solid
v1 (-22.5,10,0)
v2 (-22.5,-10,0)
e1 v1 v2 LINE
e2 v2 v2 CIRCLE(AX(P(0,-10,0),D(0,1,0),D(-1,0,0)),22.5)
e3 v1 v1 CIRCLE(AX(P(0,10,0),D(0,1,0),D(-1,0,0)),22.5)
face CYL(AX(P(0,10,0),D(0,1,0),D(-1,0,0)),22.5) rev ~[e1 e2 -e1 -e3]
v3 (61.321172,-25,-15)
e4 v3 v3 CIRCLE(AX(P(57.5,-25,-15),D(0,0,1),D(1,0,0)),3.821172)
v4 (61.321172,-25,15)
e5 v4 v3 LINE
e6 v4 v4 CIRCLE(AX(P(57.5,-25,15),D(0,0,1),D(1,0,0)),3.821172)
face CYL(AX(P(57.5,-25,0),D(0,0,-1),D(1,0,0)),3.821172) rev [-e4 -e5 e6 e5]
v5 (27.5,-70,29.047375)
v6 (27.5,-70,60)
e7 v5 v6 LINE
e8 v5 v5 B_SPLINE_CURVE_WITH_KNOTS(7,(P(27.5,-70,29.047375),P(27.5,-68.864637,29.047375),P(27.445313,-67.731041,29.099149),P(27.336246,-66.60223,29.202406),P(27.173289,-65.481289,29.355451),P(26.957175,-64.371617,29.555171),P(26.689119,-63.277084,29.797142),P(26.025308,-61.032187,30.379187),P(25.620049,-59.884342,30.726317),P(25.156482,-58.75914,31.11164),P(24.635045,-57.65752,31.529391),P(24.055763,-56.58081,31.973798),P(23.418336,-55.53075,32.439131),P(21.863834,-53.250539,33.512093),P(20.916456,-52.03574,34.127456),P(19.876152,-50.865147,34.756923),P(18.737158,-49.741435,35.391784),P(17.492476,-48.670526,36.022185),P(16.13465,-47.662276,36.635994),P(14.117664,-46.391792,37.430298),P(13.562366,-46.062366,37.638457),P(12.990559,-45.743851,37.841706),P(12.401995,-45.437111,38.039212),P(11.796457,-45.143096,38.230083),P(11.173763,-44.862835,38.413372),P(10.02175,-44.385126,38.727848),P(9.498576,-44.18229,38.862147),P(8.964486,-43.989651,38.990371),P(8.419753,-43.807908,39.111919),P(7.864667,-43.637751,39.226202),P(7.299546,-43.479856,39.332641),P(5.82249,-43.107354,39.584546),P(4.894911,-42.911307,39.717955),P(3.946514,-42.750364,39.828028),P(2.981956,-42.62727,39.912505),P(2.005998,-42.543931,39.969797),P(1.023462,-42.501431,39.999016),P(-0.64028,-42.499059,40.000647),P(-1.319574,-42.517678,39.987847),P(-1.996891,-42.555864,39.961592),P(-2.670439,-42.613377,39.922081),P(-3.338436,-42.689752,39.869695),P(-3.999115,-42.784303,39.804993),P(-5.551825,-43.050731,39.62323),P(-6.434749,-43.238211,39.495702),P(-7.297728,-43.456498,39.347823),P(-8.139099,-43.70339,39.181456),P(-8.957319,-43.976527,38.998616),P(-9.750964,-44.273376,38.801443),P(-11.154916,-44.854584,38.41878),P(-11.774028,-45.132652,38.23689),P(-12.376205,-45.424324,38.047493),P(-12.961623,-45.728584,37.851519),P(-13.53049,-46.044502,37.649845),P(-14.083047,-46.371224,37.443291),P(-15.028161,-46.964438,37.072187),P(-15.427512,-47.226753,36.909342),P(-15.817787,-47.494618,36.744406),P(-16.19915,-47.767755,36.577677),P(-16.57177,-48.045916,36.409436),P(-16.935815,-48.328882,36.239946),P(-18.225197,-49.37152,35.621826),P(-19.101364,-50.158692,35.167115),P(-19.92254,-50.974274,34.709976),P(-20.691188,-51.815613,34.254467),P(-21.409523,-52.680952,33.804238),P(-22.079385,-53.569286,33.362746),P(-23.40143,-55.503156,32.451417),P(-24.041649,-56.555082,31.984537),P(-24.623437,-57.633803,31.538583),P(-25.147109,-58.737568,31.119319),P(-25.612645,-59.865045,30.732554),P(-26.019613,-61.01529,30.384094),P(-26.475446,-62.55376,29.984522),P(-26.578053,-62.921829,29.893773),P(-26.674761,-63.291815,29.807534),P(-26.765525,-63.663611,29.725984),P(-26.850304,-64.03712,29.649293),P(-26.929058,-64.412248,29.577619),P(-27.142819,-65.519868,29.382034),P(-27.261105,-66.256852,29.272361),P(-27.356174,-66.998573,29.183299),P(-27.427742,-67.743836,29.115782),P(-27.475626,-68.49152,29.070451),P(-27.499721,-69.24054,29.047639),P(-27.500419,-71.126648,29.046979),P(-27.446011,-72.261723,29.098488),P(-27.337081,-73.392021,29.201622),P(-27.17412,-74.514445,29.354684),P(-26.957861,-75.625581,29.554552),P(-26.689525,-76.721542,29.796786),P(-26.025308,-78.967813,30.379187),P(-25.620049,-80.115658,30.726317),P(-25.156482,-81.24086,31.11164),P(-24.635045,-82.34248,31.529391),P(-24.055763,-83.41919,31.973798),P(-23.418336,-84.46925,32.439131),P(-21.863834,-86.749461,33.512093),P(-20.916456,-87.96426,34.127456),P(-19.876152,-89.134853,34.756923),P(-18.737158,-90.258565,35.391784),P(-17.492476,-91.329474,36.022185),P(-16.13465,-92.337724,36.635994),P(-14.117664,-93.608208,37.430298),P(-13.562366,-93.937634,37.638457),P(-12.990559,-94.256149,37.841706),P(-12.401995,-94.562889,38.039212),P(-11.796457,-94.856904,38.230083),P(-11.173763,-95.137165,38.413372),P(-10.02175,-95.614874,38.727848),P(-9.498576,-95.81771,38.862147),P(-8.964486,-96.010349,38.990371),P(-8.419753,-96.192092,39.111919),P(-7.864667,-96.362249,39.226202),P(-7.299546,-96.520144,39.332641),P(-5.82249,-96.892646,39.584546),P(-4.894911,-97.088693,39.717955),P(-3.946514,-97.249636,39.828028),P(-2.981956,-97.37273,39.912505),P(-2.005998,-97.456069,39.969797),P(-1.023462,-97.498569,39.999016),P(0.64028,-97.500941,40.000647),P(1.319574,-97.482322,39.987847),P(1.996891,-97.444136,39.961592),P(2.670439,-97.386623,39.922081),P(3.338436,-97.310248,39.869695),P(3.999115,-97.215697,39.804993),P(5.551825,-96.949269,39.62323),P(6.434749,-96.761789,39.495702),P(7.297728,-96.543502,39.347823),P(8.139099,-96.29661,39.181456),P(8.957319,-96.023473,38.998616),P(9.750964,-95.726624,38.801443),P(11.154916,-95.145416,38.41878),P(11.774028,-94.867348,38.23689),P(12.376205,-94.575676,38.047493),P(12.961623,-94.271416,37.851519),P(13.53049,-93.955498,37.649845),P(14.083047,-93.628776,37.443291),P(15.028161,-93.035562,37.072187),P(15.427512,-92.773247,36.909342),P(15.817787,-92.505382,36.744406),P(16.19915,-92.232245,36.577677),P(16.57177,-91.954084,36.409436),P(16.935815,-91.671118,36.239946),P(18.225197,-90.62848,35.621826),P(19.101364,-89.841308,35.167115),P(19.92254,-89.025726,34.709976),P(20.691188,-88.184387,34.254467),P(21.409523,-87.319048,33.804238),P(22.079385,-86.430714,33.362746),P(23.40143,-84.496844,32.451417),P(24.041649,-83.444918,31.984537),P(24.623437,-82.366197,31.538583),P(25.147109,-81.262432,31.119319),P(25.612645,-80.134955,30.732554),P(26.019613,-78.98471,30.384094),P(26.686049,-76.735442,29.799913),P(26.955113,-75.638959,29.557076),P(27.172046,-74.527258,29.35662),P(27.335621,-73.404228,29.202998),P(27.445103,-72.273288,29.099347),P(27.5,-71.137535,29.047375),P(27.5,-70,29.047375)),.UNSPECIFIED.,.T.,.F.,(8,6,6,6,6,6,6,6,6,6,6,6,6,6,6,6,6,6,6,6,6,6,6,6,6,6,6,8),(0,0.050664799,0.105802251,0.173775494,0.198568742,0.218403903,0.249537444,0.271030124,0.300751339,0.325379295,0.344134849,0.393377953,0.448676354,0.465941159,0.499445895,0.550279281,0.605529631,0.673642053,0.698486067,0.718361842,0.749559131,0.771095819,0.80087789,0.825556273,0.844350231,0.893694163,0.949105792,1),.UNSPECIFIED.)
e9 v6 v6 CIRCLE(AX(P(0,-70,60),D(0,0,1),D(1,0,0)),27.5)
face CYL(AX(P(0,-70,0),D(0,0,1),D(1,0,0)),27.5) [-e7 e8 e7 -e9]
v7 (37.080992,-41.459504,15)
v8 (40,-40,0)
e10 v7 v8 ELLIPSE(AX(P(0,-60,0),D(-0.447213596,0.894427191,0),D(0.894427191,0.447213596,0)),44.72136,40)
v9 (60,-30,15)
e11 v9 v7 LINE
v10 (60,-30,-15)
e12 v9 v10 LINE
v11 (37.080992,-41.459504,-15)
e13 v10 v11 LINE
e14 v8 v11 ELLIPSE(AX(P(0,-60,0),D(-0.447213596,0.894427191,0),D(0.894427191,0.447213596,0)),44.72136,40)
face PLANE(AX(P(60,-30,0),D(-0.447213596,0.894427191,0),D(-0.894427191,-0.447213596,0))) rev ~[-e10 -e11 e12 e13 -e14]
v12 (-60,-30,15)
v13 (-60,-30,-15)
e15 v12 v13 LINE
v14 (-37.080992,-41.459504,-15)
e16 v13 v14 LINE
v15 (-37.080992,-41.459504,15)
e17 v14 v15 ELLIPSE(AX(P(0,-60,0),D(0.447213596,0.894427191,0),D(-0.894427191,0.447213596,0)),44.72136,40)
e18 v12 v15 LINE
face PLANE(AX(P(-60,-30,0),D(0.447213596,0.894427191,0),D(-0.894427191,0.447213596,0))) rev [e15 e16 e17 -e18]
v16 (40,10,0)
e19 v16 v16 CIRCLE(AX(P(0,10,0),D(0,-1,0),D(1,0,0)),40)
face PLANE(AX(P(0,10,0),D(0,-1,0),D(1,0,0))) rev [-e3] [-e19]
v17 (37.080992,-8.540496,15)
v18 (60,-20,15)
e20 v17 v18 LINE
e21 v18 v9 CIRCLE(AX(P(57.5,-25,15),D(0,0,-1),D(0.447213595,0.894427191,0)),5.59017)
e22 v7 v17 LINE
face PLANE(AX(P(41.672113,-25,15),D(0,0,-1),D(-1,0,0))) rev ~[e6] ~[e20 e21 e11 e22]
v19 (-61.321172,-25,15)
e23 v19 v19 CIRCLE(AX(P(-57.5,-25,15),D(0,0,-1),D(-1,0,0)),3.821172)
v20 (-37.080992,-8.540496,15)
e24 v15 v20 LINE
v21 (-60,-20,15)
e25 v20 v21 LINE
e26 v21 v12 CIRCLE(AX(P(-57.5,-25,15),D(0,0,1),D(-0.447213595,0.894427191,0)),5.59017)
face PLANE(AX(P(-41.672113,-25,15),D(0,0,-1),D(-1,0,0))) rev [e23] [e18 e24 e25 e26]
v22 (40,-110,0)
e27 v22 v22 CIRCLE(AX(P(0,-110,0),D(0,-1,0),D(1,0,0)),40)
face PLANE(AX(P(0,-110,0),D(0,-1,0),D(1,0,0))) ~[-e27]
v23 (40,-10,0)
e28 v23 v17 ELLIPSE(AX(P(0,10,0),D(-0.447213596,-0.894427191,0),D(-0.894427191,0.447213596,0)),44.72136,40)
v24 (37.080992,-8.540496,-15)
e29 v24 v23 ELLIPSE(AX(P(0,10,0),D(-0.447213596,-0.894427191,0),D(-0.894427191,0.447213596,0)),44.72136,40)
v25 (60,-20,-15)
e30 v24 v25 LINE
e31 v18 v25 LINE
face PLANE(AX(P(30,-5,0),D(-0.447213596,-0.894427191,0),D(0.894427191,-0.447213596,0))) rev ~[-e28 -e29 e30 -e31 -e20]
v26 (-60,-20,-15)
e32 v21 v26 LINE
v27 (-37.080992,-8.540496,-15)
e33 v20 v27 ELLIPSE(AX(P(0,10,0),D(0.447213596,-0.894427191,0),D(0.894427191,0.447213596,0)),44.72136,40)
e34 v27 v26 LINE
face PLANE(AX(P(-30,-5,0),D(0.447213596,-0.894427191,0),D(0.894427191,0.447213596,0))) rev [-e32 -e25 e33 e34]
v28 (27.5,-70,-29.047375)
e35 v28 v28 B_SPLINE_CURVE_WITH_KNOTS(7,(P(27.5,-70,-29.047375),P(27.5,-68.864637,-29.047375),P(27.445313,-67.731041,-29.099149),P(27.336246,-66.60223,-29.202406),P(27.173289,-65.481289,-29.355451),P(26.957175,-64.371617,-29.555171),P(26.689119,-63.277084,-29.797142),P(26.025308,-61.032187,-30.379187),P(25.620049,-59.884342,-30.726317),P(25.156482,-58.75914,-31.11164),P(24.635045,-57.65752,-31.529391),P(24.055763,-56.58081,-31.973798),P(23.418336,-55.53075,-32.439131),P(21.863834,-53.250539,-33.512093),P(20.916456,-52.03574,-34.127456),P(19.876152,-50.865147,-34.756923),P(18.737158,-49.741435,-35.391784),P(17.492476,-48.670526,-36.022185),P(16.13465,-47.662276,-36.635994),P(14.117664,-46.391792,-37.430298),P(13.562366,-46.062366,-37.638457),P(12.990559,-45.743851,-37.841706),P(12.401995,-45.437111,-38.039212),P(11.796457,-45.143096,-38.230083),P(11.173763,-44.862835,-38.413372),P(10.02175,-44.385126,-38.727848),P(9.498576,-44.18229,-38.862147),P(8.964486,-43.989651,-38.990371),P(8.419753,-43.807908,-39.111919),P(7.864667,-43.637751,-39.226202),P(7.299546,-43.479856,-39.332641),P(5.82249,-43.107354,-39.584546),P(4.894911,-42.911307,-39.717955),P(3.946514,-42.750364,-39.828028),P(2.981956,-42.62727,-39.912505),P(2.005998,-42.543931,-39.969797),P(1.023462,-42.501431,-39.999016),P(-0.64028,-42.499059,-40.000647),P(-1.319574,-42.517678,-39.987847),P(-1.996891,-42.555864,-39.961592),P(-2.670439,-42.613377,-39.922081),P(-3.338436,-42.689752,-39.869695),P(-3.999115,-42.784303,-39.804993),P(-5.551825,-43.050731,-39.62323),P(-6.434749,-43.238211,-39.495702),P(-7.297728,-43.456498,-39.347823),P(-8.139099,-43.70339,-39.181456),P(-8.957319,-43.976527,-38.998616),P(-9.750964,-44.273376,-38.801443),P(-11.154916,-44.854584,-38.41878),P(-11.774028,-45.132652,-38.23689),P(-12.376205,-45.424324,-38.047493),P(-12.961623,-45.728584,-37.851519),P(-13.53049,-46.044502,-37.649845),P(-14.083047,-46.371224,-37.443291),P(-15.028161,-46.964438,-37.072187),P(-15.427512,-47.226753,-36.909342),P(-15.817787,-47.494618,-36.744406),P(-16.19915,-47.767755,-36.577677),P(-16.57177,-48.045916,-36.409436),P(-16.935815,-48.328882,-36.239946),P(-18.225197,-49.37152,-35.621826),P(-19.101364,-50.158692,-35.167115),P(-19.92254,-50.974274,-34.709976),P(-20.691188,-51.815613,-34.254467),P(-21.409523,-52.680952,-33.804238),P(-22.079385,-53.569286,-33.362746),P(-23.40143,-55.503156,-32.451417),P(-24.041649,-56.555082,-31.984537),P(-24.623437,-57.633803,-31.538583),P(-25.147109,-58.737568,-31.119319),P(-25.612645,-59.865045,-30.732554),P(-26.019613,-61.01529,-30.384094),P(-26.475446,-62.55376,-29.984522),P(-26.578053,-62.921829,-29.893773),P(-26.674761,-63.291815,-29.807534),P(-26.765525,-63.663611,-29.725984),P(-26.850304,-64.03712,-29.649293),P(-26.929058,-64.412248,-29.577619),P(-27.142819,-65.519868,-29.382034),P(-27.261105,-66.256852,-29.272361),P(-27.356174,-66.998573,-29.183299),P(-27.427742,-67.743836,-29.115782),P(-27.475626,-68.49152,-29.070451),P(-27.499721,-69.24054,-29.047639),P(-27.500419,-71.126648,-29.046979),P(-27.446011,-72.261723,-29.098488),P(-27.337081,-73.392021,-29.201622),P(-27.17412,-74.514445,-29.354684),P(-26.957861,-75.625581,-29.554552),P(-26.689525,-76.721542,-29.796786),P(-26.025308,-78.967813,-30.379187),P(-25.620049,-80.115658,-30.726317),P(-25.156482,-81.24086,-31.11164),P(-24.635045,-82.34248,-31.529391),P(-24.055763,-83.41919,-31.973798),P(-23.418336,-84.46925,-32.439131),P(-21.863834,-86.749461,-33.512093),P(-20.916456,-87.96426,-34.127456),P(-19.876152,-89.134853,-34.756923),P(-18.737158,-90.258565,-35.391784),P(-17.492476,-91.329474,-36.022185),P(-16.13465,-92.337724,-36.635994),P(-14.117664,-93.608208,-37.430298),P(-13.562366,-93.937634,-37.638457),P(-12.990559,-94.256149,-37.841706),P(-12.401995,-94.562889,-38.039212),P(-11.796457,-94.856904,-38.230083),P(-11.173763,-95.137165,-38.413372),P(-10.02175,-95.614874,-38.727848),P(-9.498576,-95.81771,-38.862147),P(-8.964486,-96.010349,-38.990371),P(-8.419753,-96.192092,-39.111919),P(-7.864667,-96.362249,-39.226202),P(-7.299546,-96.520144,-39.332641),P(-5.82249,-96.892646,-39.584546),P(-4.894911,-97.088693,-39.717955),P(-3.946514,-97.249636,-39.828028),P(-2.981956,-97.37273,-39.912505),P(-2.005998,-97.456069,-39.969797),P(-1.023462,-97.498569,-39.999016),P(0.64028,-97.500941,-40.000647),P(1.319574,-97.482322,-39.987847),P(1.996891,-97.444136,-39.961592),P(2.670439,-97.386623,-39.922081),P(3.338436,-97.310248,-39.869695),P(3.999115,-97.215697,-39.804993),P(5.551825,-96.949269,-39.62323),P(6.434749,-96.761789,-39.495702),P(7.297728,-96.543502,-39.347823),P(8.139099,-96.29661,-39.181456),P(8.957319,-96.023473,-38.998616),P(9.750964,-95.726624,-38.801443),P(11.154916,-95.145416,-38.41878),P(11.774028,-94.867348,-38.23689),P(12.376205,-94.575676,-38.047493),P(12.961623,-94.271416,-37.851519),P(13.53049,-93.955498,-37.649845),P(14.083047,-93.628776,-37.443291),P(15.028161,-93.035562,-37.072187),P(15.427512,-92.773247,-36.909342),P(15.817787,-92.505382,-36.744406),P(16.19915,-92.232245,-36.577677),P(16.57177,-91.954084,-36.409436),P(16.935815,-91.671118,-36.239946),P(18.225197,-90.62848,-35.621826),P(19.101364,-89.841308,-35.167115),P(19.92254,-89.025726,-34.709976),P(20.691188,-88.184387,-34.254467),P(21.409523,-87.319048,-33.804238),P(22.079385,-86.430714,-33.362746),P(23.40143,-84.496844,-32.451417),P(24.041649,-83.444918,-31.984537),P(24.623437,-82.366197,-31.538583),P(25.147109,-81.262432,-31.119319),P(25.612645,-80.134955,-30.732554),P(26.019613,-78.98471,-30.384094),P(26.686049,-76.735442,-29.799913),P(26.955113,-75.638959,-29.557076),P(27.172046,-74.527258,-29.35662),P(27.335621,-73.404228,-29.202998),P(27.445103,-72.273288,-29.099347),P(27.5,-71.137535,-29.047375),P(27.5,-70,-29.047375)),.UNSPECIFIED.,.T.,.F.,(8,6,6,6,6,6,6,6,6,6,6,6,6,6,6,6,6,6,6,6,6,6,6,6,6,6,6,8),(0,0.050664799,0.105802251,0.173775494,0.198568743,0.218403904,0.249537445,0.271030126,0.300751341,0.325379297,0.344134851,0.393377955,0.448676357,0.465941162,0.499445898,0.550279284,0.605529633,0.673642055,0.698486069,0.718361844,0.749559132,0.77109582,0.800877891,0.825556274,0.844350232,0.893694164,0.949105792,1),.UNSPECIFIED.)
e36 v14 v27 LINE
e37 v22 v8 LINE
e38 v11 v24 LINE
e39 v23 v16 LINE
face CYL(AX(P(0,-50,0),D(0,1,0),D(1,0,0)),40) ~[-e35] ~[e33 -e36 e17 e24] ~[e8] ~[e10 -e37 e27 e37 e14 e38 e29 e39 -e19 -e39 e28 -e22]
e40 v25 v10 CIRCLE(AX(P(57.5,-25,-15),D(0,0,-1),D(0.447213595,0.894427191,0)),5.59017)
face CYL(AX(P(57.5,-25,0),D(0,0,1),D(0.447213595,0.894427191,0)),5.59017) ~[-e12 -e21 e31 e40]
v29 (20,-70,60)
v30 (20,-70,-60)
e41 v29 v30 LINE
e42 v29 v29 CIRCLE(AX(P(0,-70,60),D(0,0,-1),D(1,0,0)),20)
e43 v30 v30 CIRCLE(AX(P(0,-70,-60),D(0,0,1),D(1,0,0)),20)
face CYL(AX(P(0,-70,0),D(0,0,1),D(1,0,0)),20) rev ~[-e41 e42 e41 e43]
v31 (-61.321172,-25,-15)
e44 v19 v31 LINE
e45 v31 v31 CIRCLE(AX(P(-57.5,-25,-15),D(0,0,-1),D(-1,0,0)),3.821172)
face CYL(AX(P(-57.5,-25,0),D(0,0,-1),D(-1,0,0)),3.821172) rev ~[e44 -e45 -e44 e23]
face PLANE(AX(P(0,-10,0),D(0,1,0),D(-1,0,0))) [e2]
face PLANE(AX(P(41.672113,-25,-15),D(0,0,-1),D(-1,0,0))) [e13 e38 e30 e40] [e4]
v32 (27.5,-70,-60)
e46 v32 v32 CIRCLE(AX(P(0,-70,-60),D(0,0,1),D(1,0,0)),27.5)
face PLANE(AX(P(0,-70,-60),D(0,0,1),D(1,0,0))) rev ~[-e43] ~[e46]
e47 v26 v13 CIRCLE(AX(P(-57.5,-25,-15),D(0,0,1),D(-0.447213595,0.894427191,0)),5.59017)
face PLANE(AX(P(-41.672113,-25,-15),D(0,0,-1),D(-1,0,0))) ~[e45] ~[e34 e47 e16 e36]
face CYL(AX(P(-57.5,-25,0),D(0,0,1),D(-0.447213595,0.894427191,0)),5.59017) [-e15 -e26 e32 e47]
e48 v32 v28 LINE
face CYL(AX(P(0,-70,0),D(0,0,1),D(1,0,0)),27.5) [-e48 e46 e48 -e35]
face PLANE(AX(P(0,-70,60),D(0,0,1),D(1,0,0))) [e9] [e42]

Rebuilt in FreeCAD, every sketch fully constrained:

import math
import FreeCAD as App
import Part
import Sketcher
Q = App.Units.Quantity


def add_polygon(sketch, points):
    """Adds a closed chain of lines whose ends are joined by coincident constraints."""
    first, n = sketch.GeometryCount, len(points)
    for a, b in zip(points, points[1:] + points[:1]):
        sketch.addGeometry(Part.LineSegment(App.Vector(*a, 0), App.Vector(*b, 0)), False)
    for i in range(n):
        sketch.addConstraint(Sketcher.Constraint("Coincident", first + i, 2, first + (i + 1) % n, 1))

doc = App.newDocument("Part")
params = doc.addObject("Spreadsheet::Sheet", "Params")
for row, (alias, value) in enumerate([
    ("sketch1_width", "40 mm"),
    ("sketch1_height", "120 mm"),
    ("revolution_angle", "360 deg"),
    ("sketch2_height", "40 mm"),
    ("pad1_length", "30 mm"),
    ("sketch3_diameter", "55 mm"),
    ("pad2_length", "120 mm"),
    ("sketch4_diameter", "45 mm"),
    ("pocket1_length", "20 mm"),
    ("sketch5_diameter", "40 mm"),
], start=1):
    params.set(f"A{row}", alias)
    params.set(f"B{row}", "=" + value)
    params.setAlias(f"B{row}", alias)

body = doc.addObject("PartDesign::Body", "Body")

# Sketch on XY plane
sketch1 = doc.addObject("Sketcher::SketchObject", "Sketch")
body.addObject(sketch1)
sketch1.AttachmentSupport = (doc.XY_Plane, [""])
sketch1.MapMode = "FlatFace"
add_polygon(sketch1, [(0, 10), (0, -110), (40, -110), (40, 10)])  # lines 0-3
sketch1.addConstraint([
    Sketcher.Constraint("Vertical", 0),
    Sketcher.Constraint("Horizontal", 1),
    Sketcher.Constraint("Vertical", 2),
    Sketcher.Constraint("Horizontal", 3),
    Sketcher.Constraint("PointOnObject", 0, 2, -2),
    Sketcher.Constraint("DistanceX", 1, 1, 1, 2, Q("40 mm")),
    Sketcher.Constraint("DistanceY", 0, 2, 0, 1, Q("120 mm")),
    Sketcher.Constraint("DistanceY", 0, 2, -1, 1, Q("110 mm")),
])
sketch1.setExpression("Constraints[9]", "Params.sketch1_width")
sketch1.setExpression("Constraints[10]", "Params.sketch1_height")
revolution = doc.addObject("PartDesign::Revolution", "Revolution")
body.addObject(revolution)
revolution.Profile = sketch1
revolution.ReferenceAxis = (sketch1, ["V_Axis"])
revolution.setExpression("Angle", "Params.revolution_angle")

# Sketch on XY plane
sketch2 = doc.addObject("Sketcher::SketchObject", "Sketch001")
body.addObject(sketch2)
sketch2.AttachmentSupport = (doc.XY_Plane, [""])
sketch2.MapMode = "FlatFace"
sketch2.addGeometry([
    Part.LineSegment(App.Vector(60, -20, 0), App.Vector(30, -5, 0)),  # 0
    Part.LineSegment(App.Vector(30, -5, 0), App.Vector(30, -45, 0)),  # 1
    Part.LineSegment(App.Vector(30, -45, 0), App.Vector(60, -30, 0)),  # 2
    Part.ArcOfCircle(Part.Circle(App.Vector(57.5, -25, 0), App.Vector(0, 0, 1), 5.59017), math.radians(-63.434949), math.radians(63.434949)),  # 3
    Part.Circle(App.Vector(57.5, -25, 0), App.Vector(0, 0, 1), 3.821172),  # 4
], False)
sketch2.addConstraint([
    Sketcher.Constraint("Coincident", 0, 2, 1, 1),
    Sketcher.Constraint("Coincident", 1, 2, 2, 1),
    Sketcher.Constraint("Tangent", 2, 2, 3, 1),
    Sketcher.Constraint("Tangent", 3, 2, 0, 1),
    Sketcher.Constraint("Vertical", 1),
    Sketcher.Constraint("Coincident", 4, 3, 3, 3),
    Sketcher.Constraint("Vertical", 2, 2, 3, 2),
    Sketcher.Constraint("DistanceY", 1, 2, 1, 1, Q("40 mm")),
    Sketcher.Constraint("DistanceY", 3, 3, -1, 1, Q("25 mm")),
    Sketcher.Constraint("DistanceX", -1, 1, 0, 2, Q("30 mm")),
    Sketcher.Constraint("DistanceX", -1, 1, 2, 2, Q("60 mm")),
    Sketcher.Constraint("DistanceY", 2, 2, -1, 1, Q("30 mm")),
    Sketcher.Constraint("Diameter", 4, Q("7.642345 mm")),
])
sketch2.setExpression("Constraints[7]", "Params.sketch2_height")
pad1 = doc.addObject("PartDesign::Pad", "Pad")
body.addObject(pad1)
pad1.Profile = sketch2
pad1.setExpression("Length", "Params.pad1_length")
pad1.Midplane = True
doc.recompute()

mirrored = doc.addObject("PartDesign::Mirrored", "Mirrored")
body.addObject(mirrored)
mirrored.Originals = [pad1]
mirrored.MirrorPlane = (doc.YZ_Plane, [""])
body.Tip = mirrored

# Sketch on XY plane
sketch3 = doc.addObject("Sketcher::SketchObject", "Sketch002")
body.addObject(sketch3)
sketch3.AttachmentSupport = (doc.XY_Plane, [""])
sketch3.MapMode = "FlatFace"
sketch3.addGeometry(Part.Circle(App.Vector(0, -70, 0), App.Vector(0, 0, 1), 27.5), False)
sketch3.addConstraint([
    Sketcher.Constraint("PointOnObject", 0, 3, -2),
    Sketcher.Constraint("Diameter", 0, Q("55 mm")),
    Sketcher.Constraint("DistanceY", 0, 3, -1, 1, Q("70 mm")),
])
sketch3.setExpression("Constraints[1]", "Params.sketch3_diameter")
pad2 = doc.addObject("PartDesign::Pad", "Pad001")
body.addObject(pad2)
pad2.Profile = sketch3
pad2.setExpression("Length", "Params.pad2_length")
pad2.Midplane = True

# Sketch on XZ plane
sketch4 = doc.addObject("Sketcher::SketchObject", "Sketch003")
body.addObject(sketch4)
sketch4.AttachmentSupport = (doc.XZ_Plane, [""])
sketch4.MapMode = "FlatFace"
sketch4.AttachmentOffset = App.Placement(App.Vector(0, 0, -10), App.Rotation())
sketch4.addGeometry(Part.Circle(App.Vector(0, 0, 0), App.Vector(0, 0, 1), 22.5), False)
sketch4.addConstraint([
    Sketcher.Constraint("Coincident", 0, 3, -1, 1),
    Sketcher.Constraint("Diameter", 0, Q("45 mm")),
])
sketch4.setExpression("Constraints[1]", "Params.sketch4_diameter")
pocket1 = doc.addObject("PartDesign::Pocket", "Pocket")
body.addObject(pocket1)
pocket1.Profile = sketch4
pocket1.setExpression("Length", "Params.pocket1_length")
pocket1.Reversed = True

# Sketch on XY plane
sketch5 = doc.addObject("Sketcher::SketchObject", "Sketch004")
body.addObject(sketch5)
sketch5.AttachmentSupport = (doc.XY_Plane, [""])
sketch5.MapMode = "FlatFace"
sketch5.addGeometry(Part.Circle(App.Vector(0, -70, 0), App.Vector(0, 0, 1), 20), False)
sketch5.addConstraint([
    Sketcher.Constraint("PointOnObject", 0, 3, -2),
    Sketcher.Constraint("Diameter", 0, Q("40 mm")),
    Sketcher.Constraint("DistanceY", 0, 3, -1, 1, Q("70 mm")),
])
sketch5.setExpression("Constraints[1]", "Params.sketch5_diameter")
pocket2 = doc.addObject("PartDesign::Pocket", "Pocket001")
body.addObject(pocket2)
pocket2.Profile = sketch5
pocket2.Type = "ThroughAll"
pocket2.Midplane = True

doc.recompute()
